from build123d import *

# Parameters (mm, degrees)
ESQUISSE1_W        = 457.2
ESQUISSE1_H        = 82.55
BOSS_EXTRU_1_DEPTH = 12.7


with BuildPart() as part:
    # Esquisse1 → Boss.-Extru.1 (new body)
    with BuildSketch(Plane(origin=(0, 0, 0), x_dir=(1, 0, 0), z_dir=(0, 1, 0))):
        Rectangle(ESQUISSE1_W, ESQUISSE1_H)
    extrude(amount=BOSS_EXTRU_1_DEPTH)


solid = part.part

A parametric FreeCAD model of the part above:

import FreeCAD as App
import Part
import Sketcher

V = App.Vector
Q = App.Units.Quantity

doc = App.newDocument("Part")
body = doc.addObject("PartDesign::Body", "Body")

# Sketch on XZ plane
sketch1 = body.newObject("Sketcher::SketchObject", "Sketch")
sketch1.AttachmentSupport = (doc.getObject("XZ_Plane"), [""])
sketch1.MapMode = "FlatFace"
sketch1.addGeometry(Part.LineSegment(V(-229, -41, 0), V(-229, 41, 0)), False)
sketch1.addGeometry(Part.LineSegment(V(-229, 41, 0), V(229, 41, 0)), False)
sketch1.addGeometry(Part.LineSegment(V(229, 41, 0), V(229, -41, 0)), False)
sketch1.addGeometry(Part.LineSegment(V(229, -41, 0), V(-229, -41, 0)), False)
sketch1.addConstraint(Sketcher.Constraint("Coincident", 0, 2, 1, 1))
sketch1.addConstraint(Sketcher.Constraint("Coincident", 1, 2, 2, 1))
sketch1.addConstraint(Sketcher.Constraint("Coincident", 2, 2, 3, 1))
sketch1.addConstraint(Sketcher.Constraint("Coincident", 3, 2, 0, 1))
sketch1.addConstraint(Sketcher.Constraint("Vertical", 0))
sketch1.addConstraint(Sketcher.Constraint("Horizontal", 1))
sketch1.addConstraint(Sketcher.Constraint("Vertical", 2))
sketch1.addConstraint(Sketcher.Constraint("Horizontal", 3))
sketch1.addConstraint(Sketcher.Constraint("Symmetric", 0, 2, 2, 2, -1, 1))
sketch1.addConstraint(Sketcher.Constraint("DistanceX", 1, 1, 1, 2, Q("18 in")))
sketch1.addConstraint(Sketcher.Constraint("DistanceY", 0, 1, 0, 2, Q("3.25 in")))
pad1 = body.newObject("PartDesign::Pad", "Pad")
pad1.Profile = sketch1
pad1.Length = Q("0.5 in")
pad1.Reversed = True

doc.recompute()
